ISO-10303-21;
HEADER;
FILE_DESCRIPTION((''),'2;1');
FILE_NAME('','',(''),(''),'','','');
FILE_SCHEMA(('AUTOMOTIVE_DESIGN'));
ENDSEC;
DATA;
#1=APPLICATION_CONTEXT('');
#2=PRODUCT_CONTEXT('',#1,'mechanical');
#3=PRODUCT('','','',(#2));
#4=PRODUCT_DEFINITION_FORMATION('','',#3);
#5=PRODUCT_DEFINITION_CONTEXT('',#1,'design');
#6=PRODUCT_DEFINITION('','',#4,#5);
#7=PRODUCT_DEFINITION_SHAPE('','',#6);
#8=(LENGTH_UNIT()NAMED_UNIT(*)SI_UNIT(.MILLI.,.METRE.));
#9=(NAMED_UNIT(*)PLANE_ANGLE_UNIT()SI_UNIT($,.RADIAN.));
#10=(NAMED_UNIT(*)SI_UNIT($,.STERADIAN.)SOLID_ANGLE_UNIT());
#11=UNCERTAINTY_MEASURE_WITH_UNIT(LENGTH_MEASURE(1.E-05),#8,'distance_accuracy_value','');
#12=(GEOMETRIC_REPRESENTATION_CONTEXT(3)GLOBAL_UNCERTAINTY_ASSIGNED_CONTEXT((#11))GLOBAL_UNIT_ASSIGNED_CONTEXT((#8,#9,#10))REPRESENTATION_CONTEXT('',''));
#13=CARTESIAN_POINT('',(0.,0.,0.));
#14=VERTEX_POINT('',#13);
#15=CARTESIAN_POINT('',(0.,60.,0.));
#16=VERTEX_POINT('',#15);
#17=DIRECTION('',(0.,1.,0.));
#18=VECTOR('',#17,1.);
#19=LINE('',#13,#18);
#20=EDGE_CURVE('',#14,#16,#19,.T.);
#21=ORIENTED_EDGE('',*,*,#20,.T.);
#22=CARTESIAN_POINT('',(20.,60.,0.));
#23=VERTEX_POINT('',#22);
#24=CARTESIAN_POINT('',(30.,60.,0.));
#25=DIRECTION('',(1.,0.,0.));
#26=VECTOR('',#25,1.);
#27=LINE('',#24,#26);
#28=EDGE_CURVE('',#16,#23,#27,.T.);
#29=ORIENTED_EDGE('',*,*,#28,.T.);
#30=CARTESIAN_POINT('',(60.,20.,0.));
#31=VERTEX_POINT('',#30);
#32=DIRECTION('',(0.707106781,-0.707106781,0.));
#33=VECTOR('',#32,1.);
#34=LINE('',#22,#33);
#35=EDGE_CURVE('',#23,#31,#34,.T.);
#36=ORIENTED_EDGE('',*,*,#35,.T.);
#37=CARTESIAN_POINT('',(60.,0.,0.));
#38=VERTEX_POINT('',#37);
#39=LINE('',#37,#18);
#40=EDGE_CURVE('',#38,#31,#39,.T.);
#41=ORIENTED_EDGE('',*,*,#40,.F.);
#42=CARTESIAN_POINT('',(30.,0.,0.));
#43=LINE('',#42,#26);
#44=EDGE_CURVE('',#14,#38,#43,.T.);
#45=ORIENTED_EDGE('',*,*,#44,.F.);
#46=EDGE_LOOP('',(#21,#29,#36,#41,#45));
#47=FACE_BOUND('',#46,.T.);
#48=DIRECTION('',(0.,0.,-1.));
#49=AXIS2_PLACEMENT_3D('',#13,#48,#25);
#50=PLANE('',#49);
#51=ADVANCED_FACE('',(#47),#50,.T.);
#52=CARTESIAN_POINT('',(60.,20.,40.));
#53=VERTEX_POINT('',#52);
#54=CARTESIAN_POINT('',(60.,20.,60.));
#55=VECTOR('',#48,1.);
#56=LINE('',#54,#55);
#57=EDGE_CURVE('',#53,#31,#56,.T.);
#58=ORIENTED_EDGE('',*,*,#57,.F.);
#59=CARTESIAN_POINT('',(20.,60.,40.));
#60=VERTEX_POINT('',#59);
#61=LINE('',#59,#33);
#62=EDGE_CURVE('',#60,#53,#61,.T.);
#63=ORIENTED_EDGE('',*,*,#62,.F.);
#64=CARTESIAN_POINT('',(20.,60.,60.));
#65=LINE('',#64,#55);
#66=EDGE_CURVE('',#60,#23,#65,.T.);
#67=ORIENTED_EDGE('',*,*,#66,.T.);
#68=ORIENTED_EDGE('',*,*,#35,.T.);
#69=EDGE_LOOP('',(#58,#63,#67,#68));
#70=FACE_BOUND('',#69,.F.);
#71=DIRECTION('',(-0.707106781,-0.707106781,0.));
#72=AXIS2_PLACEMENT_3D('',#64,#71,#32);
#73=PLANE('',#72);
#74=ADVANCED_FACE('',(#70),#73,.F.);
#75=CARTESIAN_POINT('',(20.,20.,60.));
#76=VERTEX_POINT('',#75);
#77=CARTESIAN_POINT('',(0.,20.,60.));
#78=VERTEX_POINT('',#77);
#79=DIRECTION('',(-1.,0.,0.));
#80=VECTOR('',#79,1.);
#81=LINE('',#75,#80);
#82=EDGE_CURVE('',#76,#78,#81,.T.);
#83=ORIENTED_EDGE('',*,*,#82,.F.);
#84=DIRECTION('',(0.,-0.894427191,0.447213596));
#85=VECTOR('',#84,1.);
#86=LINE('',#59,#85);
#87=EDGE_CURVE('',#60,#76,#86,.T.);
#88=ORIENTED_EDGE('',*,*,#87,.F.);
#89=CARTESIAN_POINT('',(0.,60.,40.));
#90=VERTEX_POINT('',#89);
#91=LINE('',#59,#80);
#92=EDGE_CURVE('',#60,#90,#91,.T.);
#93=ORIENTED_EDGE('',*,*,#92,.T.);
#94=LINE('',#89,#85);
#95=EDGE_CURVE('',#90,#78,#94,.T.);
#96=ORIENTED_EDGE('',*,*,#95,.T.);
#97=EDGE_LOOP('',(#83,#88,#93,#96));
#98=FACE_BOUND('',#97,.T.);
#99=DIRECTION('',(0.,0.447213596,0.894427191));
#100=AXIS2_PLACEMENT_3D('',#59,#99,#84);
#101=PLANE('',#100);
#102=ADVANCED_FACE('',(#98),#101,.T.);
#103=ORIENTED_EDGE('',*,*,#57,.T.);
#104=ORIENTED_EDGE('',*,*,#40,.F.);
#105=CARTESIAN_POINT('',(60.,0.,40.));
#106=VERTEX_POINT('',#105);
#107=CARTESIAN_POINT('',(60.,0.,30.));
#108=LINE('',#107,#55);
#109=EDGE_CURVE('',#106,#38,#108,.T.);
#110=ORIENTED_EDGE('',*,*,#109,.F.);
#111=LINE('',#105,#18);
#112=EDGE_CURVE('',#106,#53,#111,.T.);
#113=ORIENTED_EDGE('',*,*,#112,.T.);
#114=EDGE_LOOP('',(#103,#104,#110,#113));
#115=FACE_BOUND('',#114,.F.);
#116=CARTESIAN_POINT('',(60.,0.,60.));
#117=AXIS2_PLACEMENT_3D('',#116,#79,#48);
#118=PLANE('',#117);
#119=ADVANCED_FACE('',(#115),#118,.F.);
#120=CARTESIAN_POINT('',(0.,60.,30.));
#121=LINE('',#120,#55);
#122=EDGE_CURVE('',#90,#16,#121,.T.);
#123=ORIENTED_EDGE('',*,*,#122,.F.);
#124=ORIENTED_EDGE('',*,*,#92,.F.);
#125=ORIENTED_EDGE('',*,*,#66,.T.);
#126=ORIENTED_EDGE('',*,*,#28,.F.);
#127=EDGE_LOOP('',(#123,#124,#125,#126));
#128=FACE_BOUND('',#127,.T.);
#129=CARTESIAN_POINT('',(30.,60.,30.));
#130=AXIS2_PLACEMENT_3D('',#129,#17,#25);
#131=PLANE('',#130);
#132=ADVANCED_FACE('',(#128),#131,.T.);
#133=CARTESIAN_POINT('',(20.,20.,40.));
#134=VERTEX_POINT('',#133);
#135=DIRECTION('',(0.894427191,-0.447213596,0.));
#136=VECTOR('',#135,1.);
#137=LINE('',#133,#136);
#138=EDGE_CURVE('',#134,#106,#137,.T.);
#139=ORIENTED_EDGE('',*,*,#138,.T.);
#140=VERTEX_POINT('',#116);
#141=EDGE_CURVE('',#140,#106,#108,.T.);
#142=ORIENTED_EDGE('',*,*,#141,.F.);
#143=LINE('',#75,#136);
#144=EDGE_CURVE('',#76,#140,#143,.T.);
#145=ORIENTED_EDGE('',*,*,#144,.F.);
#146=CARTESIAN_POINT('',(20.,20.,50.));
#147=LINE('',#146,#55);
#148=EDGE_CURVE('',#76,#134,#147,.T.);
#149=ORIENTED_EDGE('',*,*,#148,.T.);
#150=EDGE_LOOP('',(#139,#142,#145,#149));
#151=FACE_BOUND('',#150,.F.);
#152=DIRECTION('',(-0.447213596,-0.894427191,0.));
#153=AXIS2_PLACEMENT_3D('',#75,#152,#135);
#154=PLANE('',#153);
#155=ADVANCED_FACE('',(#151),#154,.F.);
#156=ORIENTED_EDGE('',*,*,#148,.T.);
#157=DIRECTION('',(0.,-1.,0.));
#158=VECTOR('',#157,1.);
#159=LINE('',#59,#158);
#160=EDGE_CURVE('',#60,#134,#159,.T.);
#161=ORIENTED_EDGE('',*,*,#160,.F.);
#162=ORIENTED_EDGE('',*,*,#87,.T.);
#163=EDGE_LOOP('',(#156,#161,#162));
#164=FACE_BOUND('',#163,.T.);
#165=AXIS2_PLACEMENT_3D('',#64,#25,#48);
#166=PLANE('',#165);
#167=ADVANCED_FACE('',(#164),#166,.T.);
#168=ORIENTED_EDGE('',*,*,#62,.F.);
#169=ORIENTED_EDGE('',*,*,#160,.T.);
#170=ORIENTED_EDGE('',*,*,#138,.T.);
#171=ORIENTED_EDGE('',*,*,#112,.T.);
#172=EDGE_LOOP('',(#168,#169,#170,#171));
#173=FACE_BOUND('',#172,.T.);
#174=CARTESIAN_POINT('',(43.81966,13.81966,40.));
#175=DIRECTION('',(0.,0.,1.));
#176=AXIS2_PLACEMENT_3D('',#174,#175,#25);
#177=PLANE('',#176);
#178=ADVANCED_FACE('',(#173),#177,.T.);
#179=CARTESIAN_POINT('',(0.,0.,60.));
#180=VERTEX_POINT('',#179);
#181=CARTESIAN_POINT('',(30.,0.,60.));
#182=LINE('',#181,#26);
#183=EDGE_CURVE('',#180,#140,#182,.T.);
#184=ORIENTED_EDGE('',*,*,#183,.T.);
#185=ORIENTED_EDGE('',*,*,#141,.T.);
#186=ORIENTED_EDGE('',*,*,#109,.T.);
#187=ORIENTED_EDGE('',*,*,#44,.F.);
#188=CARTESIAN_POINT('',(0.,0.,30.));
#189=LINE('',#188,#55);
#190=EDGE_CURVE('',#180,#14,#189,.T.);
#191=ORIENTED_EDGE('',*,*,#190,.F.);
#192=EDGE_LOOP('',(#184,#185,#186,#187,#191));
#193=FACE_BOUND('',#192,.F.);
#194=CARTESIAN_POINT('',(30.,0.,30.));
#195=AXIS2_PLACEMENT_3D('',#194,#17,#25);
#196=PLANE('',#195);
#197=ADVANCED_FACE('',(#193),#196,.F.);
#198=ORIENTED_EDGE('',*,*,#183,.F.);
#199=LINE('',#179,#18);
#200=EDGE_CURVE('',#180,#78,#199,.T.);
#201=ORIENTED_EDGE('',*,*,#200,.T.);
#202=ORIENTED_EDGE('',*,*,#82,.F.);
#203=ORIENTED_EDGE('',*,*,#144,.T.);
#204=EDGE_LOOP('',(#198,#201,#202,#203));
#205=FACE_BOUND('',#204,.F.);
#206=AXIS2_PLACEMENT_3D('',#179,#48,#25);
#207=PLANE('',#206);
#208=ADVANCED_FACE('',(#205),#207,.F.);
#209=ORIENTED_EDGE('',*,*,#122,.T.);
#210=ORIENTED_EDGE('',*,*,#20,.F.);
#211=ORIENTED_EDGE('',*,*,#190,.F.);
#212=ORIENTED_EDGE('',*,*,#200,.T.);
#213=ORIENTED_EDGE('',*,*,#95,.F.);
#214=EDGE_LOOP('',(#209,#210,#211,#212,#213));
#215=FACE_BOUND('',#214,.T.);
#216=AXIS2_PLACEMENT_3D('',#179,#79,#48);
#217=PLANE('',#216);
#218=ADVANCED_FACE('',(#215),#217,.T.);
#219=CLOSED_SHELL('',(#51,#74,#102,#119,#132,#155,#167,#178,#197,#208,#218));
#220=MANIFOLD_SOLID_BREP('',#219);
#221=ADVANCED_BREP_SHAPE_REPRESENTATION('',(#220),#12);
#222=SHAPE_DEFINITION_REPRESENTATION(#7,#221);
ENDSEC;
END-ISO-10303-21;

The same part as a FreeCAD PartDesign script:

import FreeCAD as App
import Part
import Sketcher
from FreeCAD import Vector


def add_polygon(sketch, points):
    """Adds a closed chain of lines whose ends are joined by coincident constraints."""
    first, n = sketch.GeometryCount, len(points)
    for a, b in zip(points, points[1:] + points[:1]):
        sketch.addGeometry(Part.LineSegment(App.Vector(*a, 0), App.Vector(*b, 0)), False)
    for i in range(n):
        sketch.addConstraint(Sketcher.Constraint("Coincident", first + i, 2, first + (i + 1) % n, 1))

doc = App.newDocument("Part")
params = doc.addObject("Spreadsheet::Sheet", "Params")
for row, (alias, value) in enumerate([
    ("sketch1_width", "60 mm"),
    ("pad1_length", "60 mm"),
    ("sketch2_width", "40 mm"),
    ("sketch2_height", "20 mm"),
    ("pocket1_length", "40 mm"),
    ("sketch3_width", "40 mm"),
    ("pocket2_length", "60 mm"),
    ("sketch4_width", "40 mm"),
    ("sketch4_height", "20 mm"),
    ("pocket3_length", "20 mm"),
    ("sketch5_width", "40 mm"),
    ("sketch5_height", "20 mm"),
    ("pocket4_length", "20 mm"),
], start=1):
    params.set(f"A{row}", alias)
    params.set(f"B{row}", "=" + value)
    params.setAlias(f"B{row}", alias)

body = doc.addObject("PartDesign::Body", "Body")

sketch1 = body.newObject("Sketcher::SketchObject", "Sketch")
sketch1.AttachmentSupport = (doc.getObject("XZ_Plane"), [""])
sketch1.MapMode = "FlatFace"
add_polygon(sketch1, [(0, 0), (0, 60), (60, 60), (60, 0)])
sketch1.addConstraint([
    Sketcher.Constraint("Vertical", 0),
    Sketcher.Constraint("Horizontal", 1),
    Sketcher.Constraint("Vertical", 2),
    Sketcher.Constraint("Horizontal", 3),
    Sketcher.Constraint("Coincident", 3, 2, -1, 1),
    Sketcher.Constraint("Equal", 3, 0),
    Sketcher.Constraint("DistanceX", 1, 1, 1, 2, 60.0),
])
sketch1.setExpression("Constraints[10]", "Params.sketch1_width")
pad1 = body.newObject("PartDesign::Pad", "Pad")
pad1.Profile = sketch1
pad1.setExpression("Length", "Params.pad1_length")
pad1.Reversed = True

sketch2 = body.newObject("Sketcher::SketchObject", "Sketch001")
sketch2.AttachmentSupport = (doc.getObject("XZ_Plane"), [""])
sketch2.MapMode = "FlatFace"
sketch2.AttachmentOffset = App.Placement(Vector(0, 0, -60), App.Rotation())
add_polygon(sketch2, [(20, 40), (20, 60), (60, 60), (60, 40)])
sketch2.addConstraint([
    Sketcher.Constraint("Vertical", 0),
    Sketcher.Constraint("Horizontal", 1),
    Sketcher.Constraint("Vertical", 2),
    Sketcher.Constraint("Horizontal", 3),
    Sketcher.Constraint("DistanceX", 1, 1, 1, 2, 40.0),
    Sketcher.Constraint("DistanceY", 0, 1, 0, 2, 20.0),
    Sketcher.Constraint("DistanceX", -1, 1, 0, 2, 20.0),
    Sketcher.Constraint("DistanceY", -1, 1, 0, 2, 60.0),
])
sketch2.setExpression("Constraints[8]", "Params.sketch2_width")
sketch2.setExpression("Constraints[9]", "Params.sketch2_height")
pocket1 = body.newObject("PartDesign::Pocket", "Pocket")
pocket1.Profile = sketch2
pocket1.setExpression("Length", "Params.pocket1_length")
pocket1.Reversed = True

sketch3 = body.newObject("Sketcher::SketchObject", "Sketch002")
sketch3.AttachmentSupport = (doc.getObject("XY_Plane"), [""])
sketch3.MapMode = "FlatFace"
sketch3.AttachmentOffset = App.Placement(Vector(0, 0, 60), App.Rotation())
add_polygon(sketch3, [(60, 60), (20, 60), (60, 20)])
sketch3.addConstraint([
    Sketcher.Constraint("Horizontal", 0),
    Sketcher.Constraint("Vertical", 2),
    Sketcher.Constraint("Equal", 0, 2),
    Sketcher.Constraint("DistanceX", 0, 2, 0, 1, 40.0),
    Sketcher.Constraint("DistanceX", -1, 1, 0, 2, 20.0),
    Sketcher.Constraint("DistanceY", -1, 1, 0, 2, 60.0),
])
sketch3.setExpression("Constraints[6]", "Params.sketch3_width")
pocket2 = body.newObject("PartDesign::Pocket", "Pocket001")
pocket2.Profile = sketch3
pocket2.setExpression("Length", "Params.pocket2_length")

sketch4 = body.newObject("Sketcher::SketchObject", "Sketch003")
sketch4.AttachmentSupport = (doc.getObject("XY_Plane"), [""])
sketch4.MapMode = "FlatFace"
sketch4.AttachmentOffset = App.Placement(Vector(0, 0, 60), App.Rotation())
add_polygon(sketch4, [(20, 20), (60, 0), (60, 20)])
sketch4.addConstraint([
    Sketcher.Constraint("Vertical", 1),
    Sketcher.Constraint("Horizontal", 2),
    Sketcher.Constraint("PointOnObject", 0, 2, -1),
    Sketcher.Constraint("DistanceX", 2, 2, 2, 1, 40.0),
    Sketcher.Constraint("DistanceY", 1, 1, 1, 2, 20.0),
    Sketcher.Constraint("DistanceX", -1, 1, 0, 2, 60.0),
])
sketch4.setExpression("Constraints[6]", "Params.sketch4_width")
sketch4.setExpression("Constraints[7]", "Params.sketch4_height")
pocket3 = body.newObject("PartDesign::Pocket", "Pocket002")
pocket3.Profile = sketch4
pocket3.setExpression("Length", "Params.pocket3_length")

sketch5 = body.newObject("Sketcher::SketchObject", "Sketch004")
sketch5.AttachmentSupport = (doc.getObject("YZ_Plane"), [""])
sketch5.MapMode = "FlatFace"
sketch5.AttachmentOffset = App.Placement(Vector(0, 0, 20), App.Rotation())
add_polygon(sketch5, [(20, 60), (60, 40), (60, 60)])
sketch5.addConstraint([
    Sketcher.Constraint("Vertical", 1),
    Sketcher.Constraint("Horizontal", 2),
    Sketcher.Constraint("DistanceX", 2, 2, 2, 1, 40.0),
    Sketcher.Constraint("DistanceY", 1, 1, 1, 2, 20.0),
    Sketcher.Constraint("DistanceX", -1, 1, 0, 2, 60.0),
    Sketcher.Constraint("DistanceY", -1, 1, 0, 2, 40.0),
])
sketch5.setExpression("Constraints[5]", "Params.sketch5_width")
sketch5.setExpression("Constraints[6]", "Params.sketch5_height")
pocket4 = body.newObject("PartDesign::Pocket", "Pocket003")
pocket4.Profile = sketch5
pocket4.setExpression("Length", "Params.pocket4_length")

doc.recompute()
